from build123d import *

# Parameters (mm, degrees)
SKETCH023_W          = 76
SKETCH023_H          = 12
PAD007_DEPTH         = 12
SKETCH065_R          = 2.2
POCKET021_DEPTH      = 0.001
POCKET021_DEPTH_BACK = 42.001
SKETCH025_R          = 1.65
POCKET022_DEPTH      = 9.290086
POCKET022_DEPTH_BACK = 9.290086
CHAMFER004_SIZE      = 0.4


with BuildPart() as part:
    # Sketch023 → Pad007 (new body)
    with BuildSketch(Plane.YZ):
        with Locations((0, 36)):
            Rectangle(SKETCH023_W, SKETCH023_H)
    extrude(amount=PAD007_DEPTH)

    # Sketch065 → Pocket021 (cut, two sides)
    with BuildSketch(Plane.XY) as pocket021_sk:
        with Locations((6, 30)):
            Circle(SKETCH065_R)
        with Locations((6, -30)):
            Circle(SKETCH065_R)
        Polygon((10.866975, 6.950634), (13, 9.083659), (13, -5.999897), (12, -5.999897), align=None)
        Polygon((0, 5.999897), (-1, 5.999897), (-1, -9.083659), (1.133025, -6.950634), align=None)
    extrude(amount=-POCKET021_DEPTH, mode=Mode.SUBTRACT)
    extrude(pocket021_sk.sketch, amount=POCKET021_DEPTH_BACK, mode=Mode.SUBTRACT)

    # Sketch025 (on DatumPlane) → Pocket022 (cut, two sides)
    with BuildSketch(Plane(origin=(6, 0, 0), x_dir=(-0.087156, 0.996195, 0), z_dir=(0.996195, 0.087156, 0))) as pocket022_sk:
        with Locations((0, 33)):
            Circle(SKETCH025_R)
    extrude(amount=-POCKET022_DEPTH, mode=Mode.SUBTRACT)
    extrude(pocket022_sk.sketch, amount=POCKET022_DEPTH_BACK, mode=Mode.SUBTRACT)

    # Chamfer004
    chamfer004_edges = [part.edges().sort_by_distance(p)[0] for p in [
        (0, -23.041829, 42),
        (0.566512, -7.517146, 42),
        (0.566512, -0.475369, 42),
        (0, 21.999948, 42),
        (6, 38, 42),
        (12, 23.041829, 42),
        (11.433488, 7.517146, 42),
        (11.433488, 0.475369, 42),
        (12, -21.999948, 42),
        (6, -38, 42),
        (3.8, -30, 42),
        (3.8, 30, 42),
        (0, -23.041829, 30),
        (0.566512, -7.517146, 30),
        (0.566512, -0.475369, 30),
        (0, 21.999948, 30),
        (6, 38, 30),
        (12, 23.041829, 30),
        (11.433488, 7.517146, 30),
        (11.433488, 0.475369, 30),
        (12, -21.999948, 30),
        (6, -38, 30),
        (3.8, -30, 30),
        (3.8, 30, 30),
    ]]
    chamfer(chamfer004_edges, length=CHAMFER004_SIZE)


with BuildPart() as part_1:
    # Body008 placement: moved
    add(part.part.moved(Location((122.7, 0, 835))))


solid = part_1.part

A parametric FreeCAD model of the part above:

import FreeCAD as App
import Part
import Sketcher
from FreeCAD import Vector
Q = App.Units.Quantity


def edges_at(feature, points):
    """Names of the edges that pass closest to the given points."""
    edges = feature.Shape.Edges
    near = lambda p: min(range(len(edges)), key=lambda i: edges[i].distToShape(Part.Vertex(*p))[0])
    return sorted({f"Edge{near(p) + 1}" for p in points})


def add_polygon(sketch, points):
    """Adds a closed chain of lines whose ends are joined by coincident constraints."""
    first, n = sketch.GeometryCount, len(points)
    for a, b in zip(points, points[1:] + points[:1]):
        sketch.addGeometry(Part.LineSegment(App.Vector(*a, 0), App.Vector(*b, 0)), False)
    for i in range(n):
        sketch.addConstraint(Sketcher.Constraint("Coincident", first + i, 2, first + (i + 1) % n, 1))

doc = App.newDocument("Part")
params = doc.addObject("Spreadsheet::Sheet", "Params")
for row, (alias, value) in enumerate([
    ("sketch1_width", "76 mm"),
    ("sketch1_height", "12 mm"),
    ("pad1_length", "12 mm"),
    ("sketch2_diameter", "4.4 mm"),
    ("sketch2_width", "1 mm"),
    ("sketch2_length", "13 mm"),
    ("sketch3_diameter", "3.3 mm"),
    ("chamfer_size", "0.4 mm"),
], start=1):
    params.set(f"A{row}", alias)
    params.set(f"B{row}", "=" + value)
    params.setAlias(f"B{row}", alias)

body = doc.addObject("PartDesign::Body", "Body")

# Sketch on YZ plane
sketch1 = body.newObject("Sketcher::SketchObject", "Sketch")
sketch1.AttachmentSupport = (doc.getObject("YZ_Plane"), [""])
sketch1.MapMode = "FlatFace"
add_polygon(sketch1, [(-38, 42), (-38, 30), (38, 30), (38, 42)])  # lines 0-3
sketch1.addConstraint(Sketcher.Constraint("Vertical", 0))
sketch1.addConstraint(Sketcher.Constraint("Horizontal", 1))
sketch1.addConstraint(Sketcher.Constraint("Vertical", 2))
sketch1.addConstraint(Sketcher.Constraint("Horizontal", 3))
sketch1.addConstraint(Sketcher.Constraint("DistanceX", 1, 1, 1, 2, Q("76 mm")))
sketch1.addConstraint(Sketcher.Constraint("DistanceY", 0, 2, 0, 1, Q("12 mm")))
sketch1.addConstraint(Sketcher.Constraint("DistanceX", 0, 2, -1, 1, Q("38 mm")))
sketch1.addConstraint(Sketcher.Constraint("DistanceY", -1, 1, 0, 2, Q("30 mm")))
sketch1.setExpression("Constraints[8]", "Params.sketch1_width")
sketch1.setExpression("Constraints[9]", "Params.sketch1_height")
pad1 = body.newObject("PartDesign::Pad", "Pad")
pad1.Profile = sketch1
pad1.setExpression("Length", "Params.pad1_length")

# Sketch on XY plane
sketch2 = body.newObject("Sketcher::SketchObject", "Sketch001")
sketch2.AttachmentSupport = (doc.getObject("XY_Plane"), [""])
sketch2.MapMode = "FlatFace"
sketch2.addGeometry(Part.Circle(Vector(6, 30, 0), Vector(0, 0, 1), 2.2), False)  # 0
sketch2.addGeometry(Part.Circle(Vector(6, -30, 0), Vector(0, 0, 1), 2.2), False)  # 1
add_polygon(sketch2, [(13, 9.1), (10.9, 7), (12, -6), (13, -6)])  # lines 2-5
add_polygon(sketch2, [(0, 6), (-1, 6), (-1, -9.1), (1.1, -7)])  # lines 6-9
sketch2.addConstraint(Sketcher.Constraint("Horizontal", 4))
sketch2.addConstraint(Sketcher.Constraint("Vertical", 5))
sketch2.addConstraint(Sketcher.Constraint("Horizontal", 6))
sketch2.addConstraint(Sketcher.Constraint("Vertical", 7))
sketch2.addConstraint(Sketcher.Constraint("Equal", 0, 1))
sketch2.addConstraint(Sketcher.Constraint("Symmetric", 0, 3, 1, 3, -1))
sketch2.addConstraint(Sketcher.Constraint("PointOnObject", 9, 2, -2))
sketch2.addConstraint(Sketcher.Constraint("Parallel", 2, 8))
sketch2.addConstraint(Sketcher.Constraint("Parallel", 3, 9))
sketch2.addConstraint(Sketcher.Constraint("Equal", 4, 6))
sketch2.addConstraint(Sketcher.Constraint("Equal", 5, 7))
sketch2.addConstraint(Sketcher.Constraint("Diameter", 0, Q("4.4 mm")))
sketch2.addConstraint(Sketcher.Constraint("DistanceX", 4, 1, 4, 2, Q("1 mm")))
sketch2.addConstraint(Sketcher.Constraint("Angle", 2, Q("-135 deg")))
sketch2.addConstraint(Sketcher.Constraint("Angle", 3, Q("-84.999998 deg")))
sketch2.addConstraint(Sketcher.Constraint("Distance", 3, Q("13 mm")))
sketch2.addConstraint(Sketcher.Constraint("DistanceX", -1, 1, 0, 3, Q("6 mm")))
sketch2.addConstraint(Sketcher.Constraint("DistanceY", -1, 1, 0, 3, Q("30 mm")))
sketch2.addConstraint(Sketcher.Constraint("DistanceX", -1, 1, 3, 2, Q("12 mm")))
sketch2.addConstraint(Sketcher.Constraint("DistanceY", -1, 1, 5, 2, Q("9.083659 mm")))
sketch2.addConstraint(Sketcher.Constraint("DistanceY", 7, 2, -1, 1, Q("9.083659 mm")))
sketch2.setExpression("Constraints[19]", "Params.sketch2_diameter")
sketch2.setExpression("Constraints[20]", "Params.sketch2_width")
sketch2.setExpression("Constraints[23]", "Params.sketch2_length")
pocket1 = body.newObject("PartDesign::Pocket", "Pocket")
pocket1.Profile = sketch2
pocket1.Type = "ThroughAll"
pocket1.Midplane = True

# Sketch on an angled plane
sketch3 = body.newObject("Sketcher::SketchObject", "Sketch002")
sketch3.Placement = App.Placement(Vector(6, 0, 0), App.Rotation(Vector(-0.087155972, 0.996194678, 0), Vector(0, 0, 1), Vector(0.996194678, 0.087155972, 0), "ZXY"))
sketch3.addGeometry(Part.Circle(Vector(0, 33, 0), Vector(0, 0, 1), 1.6), False)
sketch3.addConstraint(Sketcher.Constraint("PointOnObject", 0, 3, -2))
sketch3.addConstraint(Sketcher.Constraint("Diameter", 0, Q("3.3 mm")))
sketch3.addConstraint(Sketcher.Constraint("DistanceY", -1, 1, 0, 3, Q("33 mm")))
sketch3.setExpression("Constraints[1]", "Params.sketch3_diameter")
pocket2 = body.newObject("PartDesign::Pocket", "Pocket001")
pocket2.Profile = sketch3
pocket2.Type = "ThroughAll"
pocket2.Midplane = True
doc.recompute()

chamfer = body.newObject("PartDesign::Chamfer", "Chamfer")
chamfer.Base = (pocket2, edges_at(pocket2, [
    (0, -23.042, 42),
    (0.567, -7.517, 42),
    (0.567, -0.475, 42),
    (0, 22, 42),
    (6, 38, 42),
    (12, 23.042, 42),
    (11.433, 7.517, 42),
    (11.433, 0.475, 42),
    (12, -22, 42),
    (6, -38, 42),
    (3.8, -30, 42),
    (3.8, 30, 42),
    (0, -23.042, 30),
    (0.567, -7.517, 30),
    (0.567, -0.475, 30),
    (0, 22, 30),
    (6, 38, 30),
    (12, 23.042, 30),
    (11.433, 7.517, 30),
    (11.433, 0.475, 30),
    (12, -22, 30),
    (6, -38, 30),
    (3.8, -30, 30),
    (3.8, 30, 30),
]))
chamfer.setExpression("Size", "Params.chamfer_size")
body2 = doc.addObject("PartDesign::Body", "Body001")
doc.recompute()

body.Placement = App.Placement(Vector(122.7, 0, 835), App.Rotation(Vector(0, 0, 1), 0))
boolean = body2.newObject("PartDesign::Boolean", "Boolean")
boolean.Type = "Fuse"
boolean.addObjects([body])

doc.recompute()
